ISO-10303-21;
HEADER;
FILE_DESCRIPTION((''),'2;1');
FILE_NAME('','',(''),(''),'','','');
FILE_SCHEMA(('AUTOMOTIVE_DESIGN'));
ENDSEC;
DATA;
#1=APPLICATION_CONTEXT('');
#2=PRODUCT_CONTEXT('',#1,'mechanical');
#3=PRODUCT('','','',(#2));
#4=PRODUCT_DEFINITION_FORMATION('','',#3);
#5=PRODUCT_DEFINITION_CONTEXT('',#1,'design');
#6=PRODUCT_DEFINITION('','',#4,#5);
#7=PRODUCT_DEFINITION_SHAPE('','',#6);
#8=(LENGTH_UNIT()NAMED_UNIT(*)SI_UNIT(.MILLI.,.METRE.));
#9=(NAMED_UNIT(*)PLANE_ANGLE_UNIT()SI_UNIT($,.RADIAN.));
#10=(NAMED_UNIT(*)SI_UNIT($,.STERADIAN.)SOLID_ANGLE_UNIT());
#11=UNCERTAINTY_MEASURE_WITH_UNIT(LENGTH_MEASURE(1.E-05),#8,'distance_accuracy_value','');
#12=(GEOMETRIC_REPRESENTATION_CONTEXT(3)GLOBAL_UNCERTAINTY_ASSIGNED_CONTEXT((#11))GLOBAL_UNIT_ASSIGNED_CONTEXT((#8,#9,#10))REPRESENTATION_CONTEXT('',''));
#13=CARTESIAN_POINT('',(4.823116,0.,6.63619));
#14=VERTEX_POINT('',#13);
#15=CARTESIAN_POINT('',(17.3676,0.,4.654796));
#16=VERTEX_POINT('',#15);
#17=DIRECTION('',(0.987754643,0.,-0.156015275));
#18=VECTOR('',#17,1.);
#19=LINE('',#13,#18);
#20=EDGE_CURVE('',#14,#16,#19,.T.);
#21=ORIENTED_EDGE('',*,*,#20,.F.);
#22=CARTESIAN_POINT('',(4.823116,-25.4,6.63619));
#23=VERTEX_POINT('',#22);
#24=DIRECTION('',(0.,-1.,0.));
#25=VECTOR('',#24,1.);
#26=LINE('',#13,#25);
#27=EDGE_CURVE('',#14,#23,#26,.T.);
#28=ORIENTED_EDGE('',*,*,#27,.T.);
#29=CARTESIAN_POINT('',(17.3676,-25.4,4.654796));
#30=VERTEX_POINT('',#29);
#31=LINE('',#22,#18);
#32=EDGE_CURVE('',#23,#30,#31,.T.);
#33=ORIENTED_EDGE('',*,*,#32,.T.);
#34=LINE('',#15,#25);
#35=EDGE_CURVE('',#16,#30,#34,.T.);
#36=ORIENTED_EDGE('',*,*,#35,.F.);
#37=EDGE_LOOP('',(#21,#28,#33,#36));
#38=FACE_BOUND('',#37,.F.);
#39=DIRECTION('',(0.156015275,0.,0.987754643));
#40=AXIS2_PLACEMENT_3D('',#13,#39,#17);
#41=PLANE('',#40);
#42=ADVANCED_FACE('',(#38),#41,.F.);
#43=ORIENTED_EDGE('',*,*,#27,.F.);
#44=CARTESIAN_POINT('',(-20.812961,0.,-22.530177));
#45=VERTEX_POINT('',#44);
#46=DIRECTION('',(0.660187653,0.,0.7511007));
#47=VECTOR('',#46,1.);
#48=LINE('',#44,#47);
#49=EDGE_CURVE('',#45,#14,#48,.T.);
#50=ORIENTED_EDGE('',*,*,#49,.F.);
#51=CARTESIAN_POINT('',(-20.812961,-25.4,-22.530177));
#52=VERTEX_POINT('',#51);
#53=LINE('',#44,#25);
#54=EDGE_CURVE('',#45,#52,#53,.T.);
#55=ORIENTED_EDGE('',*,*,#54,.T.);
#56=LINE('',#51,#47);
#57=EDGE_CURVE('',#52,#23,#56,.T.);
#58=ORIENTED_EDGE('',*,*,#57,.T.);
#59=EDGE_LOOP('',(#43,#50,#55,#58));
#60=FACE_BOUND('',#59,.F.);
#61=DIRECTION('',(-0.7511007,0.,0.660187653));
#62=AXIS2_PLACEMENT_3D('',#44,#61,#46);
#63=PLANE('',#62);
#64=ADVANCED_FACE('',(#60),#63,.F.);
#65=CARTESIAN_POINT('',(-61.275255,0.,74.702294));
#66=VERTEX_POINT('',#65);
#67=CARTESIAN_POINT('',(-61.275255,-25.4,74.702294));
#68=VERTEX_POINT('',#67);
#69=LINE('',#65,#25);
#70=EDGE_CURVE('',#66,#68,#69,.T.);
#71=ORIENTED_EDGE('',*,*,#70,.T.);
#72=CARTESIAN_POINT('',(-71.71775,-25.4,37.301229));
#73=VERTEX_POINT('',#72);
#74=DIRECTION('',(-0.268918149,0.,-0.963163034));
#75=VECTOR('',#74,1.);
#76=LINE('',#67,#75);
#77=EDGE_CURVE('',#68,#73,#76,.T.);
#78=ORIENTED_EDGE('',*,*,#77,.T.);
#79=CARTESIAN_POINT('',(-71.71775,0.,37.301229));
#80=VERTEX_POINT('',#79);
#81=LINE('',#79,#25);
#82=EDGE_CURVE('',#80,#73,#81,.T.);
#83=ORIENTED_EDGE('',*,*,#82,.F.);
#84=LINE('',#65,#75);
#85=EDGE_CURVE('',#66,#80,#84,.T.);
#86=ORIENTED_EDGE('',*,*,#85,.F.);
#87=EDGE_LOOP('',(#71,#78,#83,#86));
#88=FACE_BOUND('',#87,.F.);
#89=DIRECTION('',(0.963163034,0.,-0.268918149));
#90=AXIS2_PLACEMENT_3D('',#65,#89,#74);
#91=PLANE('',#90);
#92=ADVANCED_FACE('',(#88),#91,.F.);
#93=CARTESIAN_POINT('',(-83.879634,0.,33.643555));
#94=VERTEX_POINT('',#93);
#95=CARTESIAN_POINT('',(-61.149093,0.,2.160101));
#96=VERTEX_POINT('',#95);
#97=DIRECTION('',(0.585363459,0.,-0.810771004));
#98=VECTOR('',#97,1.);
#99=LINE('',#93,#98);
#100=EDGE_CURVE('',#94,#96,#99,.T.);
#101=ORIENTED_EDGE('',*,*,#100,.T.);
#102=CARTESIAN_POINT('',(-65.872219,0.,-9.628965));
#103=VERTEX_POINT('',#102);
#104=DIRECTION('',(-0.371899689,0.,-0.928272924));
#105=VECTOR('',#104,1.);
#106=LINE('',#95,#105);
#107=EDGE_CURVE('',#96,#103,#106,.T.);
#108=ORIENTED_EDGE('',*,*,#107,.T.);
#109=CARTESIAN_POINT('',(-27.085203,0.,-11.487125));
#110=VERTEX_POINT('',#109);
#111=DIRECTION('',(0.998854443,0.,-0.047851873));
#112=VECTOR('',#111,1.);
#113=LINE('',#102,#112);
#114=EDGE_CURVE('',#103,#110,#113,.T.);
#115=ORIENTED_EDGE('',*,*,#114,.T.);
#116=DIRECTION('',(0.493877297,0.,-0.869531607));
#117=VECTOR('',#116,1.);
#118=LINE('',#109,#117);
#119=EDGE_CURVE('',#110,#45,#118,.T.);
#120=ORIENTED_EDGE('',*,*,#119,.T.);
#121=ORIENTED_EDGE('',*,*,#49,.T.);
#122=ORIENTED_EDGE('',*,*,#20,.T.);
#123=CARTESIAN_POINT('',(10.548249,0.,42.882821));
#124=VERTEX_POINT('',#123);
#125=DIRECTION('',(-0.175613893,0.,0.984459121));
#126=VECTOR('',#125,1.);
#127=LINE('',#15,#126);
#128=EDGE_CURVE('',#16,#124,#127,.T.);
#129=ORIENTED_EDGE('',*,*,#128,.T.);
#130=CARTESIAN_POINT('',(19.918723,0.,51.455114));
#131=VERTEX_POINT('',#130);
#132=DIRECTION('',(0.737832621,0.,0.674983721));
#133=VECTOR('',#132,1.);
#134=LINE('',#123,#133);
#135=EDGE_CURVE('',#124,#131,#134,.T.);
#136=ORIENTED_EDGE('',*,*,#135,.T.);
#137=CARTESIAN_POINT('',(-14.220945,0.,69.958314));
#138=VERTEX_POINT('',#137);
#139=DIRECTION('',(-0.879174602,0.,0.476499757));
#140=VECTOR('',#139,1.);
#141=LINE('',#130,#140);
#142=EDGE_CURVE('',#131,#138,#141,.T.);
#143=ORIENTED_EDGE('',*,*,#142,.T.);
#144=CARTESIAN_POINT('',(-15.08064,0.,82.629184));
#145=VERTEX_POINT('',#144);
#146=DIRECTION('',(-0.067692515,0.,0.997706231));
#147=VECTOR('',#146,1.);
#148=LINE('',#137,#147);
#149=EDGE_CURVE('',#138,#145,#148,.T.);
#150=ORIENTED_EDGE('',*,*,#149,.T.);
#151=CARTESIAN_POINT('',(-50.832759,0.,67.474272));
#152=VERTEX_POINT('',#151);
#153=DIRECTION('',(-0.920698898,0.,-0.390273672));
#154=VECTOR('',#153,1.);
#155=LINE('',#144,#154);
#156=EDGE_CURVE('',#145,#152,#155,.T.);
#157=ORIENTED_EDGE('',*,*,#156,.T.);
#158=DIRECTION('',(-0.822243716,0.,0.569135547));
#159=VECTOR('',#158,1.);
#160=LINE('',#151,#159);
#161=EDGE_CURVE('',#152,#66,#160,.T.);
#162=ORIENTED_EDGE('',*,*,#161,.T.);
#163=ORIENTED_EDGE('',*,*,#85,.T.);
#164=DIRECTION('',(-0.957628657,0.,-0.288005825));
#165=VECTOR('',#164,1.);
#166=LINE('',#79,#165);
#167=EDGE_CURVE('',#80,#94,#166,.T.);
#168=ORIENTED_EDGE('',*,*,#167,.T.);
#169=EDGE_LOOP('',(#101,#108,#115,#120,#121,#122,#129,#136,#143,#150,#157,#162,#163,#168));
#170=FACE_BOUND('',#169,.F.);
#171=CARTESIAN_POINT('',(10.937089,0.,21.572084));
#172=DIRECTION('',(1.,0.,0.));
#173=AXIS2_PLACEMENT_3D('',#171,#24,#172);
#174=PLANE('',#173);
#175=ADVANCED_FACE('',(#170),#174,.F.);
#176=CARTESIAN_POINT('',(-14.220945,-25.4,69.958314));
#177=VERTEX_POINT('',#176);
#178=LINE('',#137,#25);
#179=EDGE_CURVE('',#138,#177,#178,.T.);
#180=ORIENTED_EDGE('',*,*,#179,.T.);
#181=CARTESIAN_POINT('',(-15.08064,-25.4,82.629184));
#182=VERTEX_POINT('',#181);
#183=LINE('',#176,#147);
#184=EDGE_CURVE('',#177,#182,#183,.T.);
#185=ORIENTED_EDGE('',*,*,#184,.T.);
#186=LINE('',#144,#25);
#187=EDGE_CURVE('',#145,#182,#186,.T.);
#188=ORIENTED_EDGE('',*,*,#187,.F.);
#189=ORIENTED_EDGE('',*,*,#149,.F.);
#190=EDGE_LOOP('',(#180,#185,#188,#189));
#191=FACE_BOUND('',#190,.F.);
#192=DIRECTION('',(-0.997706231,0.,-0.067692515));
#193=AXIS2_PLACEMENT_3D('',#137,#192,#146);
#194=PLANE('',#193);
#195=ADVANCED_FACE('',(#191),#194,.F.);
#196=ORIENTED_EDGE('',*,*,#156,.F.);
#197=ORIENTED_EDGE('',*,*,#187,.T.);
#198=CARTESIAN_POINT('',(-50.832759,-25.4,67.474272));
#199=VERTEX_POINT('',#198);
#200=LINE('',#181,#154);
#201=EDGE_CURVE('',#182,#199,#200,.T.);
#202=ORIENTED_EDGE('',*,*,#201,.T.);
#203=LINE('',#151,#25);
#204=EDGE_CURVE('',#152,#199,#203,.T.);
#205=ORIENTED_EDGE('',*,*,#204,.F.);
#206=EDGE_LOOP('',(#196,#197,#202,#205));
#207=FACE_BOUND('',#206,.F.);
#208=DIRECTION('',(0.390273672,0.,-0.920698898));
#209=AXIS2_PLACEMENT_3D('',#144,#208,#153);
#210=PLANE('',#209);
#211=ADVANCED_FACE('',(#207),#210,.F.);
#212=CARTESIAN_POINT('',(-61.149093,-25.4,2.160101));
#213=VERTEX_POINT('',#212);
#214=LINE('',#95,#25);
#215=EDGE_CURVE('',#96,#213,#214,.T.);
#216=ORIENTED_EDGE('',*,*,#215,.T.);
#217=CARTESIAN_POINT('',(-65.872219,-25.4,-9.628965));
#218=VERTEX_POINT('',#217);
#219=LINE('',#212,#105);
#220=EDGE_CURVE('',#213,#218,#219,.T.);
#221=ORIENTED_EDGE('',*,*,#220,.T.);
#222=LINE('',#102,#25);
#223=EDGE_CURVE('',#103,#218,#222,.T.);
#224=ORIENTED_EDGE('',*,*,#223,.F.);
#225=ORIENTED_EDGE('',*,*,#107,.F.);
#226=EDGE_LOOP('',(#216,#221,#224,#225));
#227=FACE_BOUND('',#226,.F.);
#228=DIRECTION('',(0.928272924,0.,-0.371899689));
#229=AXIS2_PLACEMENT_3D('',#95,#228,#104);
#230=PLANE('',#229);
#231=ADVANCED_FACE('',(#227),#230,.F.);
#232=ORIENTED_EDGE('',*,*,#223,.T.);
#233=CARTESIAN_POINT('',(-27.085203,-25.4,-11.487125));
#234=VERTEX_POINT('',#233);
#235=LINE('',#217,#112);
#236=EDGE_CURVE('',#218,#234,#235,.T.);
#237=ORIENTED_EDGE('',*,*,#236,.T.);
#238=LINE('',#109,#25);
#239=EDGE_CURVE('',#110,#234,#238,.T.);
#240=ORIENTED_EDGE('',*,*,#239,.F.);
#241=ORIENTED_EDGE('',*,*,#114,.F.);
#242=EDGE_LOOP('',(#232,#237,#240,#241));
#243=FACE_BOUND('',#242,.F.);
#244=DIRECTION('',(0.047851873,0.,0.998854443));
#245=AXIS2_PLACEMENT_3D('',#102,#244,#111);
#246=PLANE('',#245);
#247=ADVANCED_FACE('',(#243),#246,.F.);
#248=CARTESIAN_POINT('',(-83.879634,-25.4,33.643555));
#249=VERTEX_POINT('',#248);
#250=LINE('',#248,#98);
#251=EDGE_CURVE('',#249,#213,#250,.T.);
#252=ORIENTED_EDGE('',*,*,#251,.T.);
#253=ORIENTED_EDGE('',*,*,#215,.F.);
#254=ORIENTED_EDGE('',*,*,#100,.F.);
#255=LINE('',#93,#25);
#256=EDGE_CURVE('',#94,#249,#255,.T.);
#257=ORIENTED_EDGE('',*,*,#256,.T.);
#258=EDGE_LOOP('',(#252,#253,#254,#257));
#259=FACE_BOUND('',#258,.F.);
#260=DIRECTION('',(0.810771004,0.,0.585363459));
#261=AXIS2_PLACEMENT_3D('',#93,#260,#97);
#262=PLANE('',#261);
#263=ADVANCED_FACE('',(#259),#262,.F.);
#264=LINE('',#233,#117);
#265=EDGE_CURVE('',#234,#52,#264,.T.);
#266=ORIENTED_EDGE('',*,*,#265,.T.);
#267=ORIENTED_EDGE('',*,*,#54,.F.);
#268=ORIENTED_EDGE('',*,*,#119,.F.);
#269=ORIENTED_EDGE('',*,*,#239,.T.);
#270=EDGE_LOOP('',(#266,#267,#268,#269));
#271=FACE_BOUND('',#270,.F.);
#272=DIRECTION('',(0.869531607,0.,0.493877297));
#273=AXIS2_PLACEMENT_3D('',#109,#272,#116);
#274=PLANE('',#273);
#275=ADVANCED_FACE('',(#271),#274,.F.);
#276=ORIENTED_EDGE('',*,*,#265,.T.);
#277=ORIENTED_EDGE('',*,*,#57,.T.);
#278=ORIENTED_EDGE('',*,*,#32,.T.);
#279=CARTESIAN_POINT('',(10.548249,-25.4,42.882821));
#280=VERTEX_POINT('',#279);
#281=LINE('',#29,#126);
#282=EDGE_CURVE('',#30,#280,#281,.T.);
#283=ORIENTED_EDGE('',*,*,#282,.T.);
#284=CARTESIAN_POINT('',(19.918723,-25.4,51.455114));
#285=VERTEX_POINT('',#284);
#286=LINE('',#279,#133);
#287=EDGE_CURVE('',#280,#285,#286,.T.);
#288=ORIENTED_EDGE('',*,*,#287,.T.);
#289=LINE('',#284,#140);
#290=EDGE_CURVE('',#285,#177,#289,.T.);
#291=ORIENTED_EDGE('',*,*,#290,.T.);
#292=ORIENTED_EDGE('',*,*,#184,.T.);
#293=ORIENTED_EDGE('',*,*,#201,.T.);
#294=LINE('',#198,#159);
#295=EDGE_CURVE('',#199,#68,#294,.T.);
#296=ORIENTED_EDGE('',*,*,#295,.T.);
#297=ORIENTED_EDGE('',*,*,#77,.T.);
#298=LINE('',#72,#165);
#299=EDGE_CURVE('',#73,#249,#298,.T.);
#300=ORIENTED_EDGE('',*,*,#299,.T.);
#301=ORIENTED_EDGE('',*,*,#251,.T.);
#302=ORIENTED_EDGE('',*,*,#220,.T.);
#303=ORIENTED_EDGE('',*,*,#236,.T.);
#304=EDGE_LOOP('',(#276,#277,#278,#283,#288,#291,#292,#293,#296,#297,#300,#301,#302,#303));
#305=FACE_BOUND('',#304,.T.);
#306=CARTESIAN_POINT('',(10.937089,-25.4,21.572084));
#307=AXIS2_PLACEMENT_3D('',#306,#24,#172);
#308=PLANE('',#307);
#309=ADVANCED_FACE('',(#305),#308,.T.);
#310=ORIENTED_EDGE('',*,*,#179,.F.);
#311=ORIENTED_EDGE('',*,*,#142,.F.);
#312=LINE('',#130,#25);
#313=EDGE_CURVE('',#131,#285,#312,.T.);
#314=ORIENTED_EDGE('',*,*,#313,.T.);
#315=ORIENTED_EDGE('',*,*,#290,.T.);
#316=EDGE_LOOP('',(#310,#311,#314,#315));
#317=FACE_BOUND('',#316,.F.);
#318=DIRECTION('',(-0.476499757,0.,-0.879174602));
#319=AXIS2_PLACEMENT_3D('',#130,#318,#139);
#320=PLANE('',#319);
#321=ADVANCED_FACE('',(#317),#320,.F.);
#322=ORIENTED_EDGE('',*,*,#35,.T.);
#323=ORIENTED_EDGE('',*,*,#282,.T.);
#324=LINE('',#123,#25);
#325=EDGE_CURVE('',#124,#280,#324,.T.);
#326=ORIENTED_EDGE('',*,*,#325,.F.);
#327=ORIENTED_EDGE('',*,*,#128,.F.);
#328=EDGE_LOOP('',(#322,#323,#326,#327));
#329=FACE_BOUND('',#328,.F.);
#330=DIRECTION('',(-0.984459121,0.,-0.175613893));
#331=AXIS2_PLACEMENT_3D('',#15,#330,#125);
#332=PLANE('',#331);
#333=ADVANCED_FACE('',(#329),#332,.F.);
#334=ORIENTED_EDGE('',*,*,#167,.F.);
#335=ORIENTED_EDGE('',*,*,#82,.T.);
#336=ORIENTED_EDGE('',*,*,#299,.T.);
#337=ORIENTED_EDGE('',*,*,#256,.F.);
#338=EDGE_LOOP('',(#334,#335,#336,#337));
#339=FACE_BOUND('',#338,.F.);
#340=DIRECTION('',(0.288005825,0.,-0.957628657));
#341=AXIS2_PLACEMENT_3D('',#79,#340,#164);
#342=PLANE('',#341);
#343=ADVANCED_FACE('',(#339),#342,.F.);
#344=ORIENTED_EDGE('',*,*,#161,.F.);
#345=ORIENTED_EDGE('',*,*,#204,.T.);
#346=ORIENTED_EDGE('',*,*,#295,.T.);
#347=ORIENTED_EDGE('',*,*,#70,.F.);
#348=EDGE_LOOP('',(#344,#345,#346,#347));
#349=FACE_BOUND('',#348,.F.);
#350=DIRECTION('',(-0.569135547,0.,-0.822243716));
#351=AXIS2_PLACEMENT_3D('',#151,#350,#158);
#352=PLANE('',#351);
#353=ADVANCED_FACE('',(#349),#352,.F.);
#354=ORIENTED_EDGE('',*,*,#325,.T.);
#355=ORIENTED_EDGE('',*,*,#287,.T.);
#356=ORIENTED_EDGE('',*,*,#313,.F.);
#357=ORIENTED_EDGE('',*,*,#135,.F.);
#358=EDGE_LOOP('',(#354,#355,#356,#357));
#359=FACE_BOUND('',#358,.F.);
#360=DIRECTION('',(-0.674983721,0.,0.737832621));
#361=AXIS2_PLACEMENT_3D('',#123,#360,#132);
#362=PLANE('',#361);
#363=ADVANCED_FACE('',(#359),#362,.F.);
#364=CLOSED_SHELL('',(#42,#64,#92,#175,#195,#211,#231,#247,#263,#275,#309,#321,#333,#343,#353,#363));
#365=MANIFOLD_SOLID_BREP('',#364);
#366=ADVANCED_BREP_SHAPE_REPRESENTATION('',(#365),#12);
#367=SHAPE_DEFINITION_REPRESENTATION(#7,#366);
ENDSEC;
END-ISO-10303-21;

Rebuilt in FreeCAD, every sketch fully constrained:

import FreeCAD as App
import Part
import Sketcher

V = App.Vector
Q = App.Units.Quantity


def add_polygon(sketch, points):
    """Adds a closed chain of lines whose ends are joined by coincident constraints."""
    first, n = sketch.GeometryCount, len(points)
    for a, b in zip(points, points[1:] + points[:1]):
        sketch.addGeometry(Part.LineSegment(App.Vector(*a, 0), App.Vector(*b, 0)), False)
    for i in range(n):
        sketch.addConstraint(Sketcher.Constraint("Coincident", first + i, 2, first + (i + 1) % n, 1))

doc = App.newDocument("Part")
body = doc.addObject("PartDesign::Body", "Body")

# Sketch on XZ plane
sketch1 = body.newObject("Sketcher::SketchObject", "Sketch")
sketch1.AttachmentSupport = (doc.getObject("XZ_Plane"), [""])
sketch1.MapMode = "FlatFace"
add_polygon(sketch1, [(17, 5), (11, 43), (20, 51), (-14, 70), (-15, 83), (-51, 67), (-61, 75), (-72, 37), (-84, 34), (-61, 2), (-66, -10), (-27, -11), (-21, -23), (5, 7)])  # lines 0-13
sketch1.addConstraint([
    Sketcher.Constraint("Equal", 0, 2),
    Sketcher.Constraint("Equal", 1, 3),
    Sketcher.Constraint("Equal", 2, 4),
    Sketcher.Constraint("Equal", 3, 5),
    Sketcher.Constraint("Equal", 4, 6),
    Sketcher.Constraint("Equal", 5, 7),
    Sketcher.Constraint("Equal", 6, 8),
    Sketcher.Constraint("Equal", 7, 9),
    Sketcher.Constraint("Equal", 8, 10),
    Sketcher.Constraint("Equal", 9, 11),
    Sketcher.Constraint("Equal", 10, 12),
    Sketcher.Constraint("Equal", 11, 13),
    Sketcher.Constraint("Distance", 1, Q("0.5 in")),
    Sketcher.Constraint("DistanceY", -1, 1, 0, 2, Q("1.6883 in")),
    Sketcher.Constraint("Distance", 0, Q("38.831501 mm")),
    Sketcher.Constraint("DistanceY", -1, 1, 8, 2, Q("2.160101 mm")),
    Sketcher.Constraint("DistanceX", -1, 1, 13, 2, Q("17.3676 mm")),
    Sketcher.Constraint("DistanceY", 1, 2, 2, 2, Q("18.5032 mm")),
    Sketcher.Constraint("DistanceX", 6, 2, 0, 2, Q("82.265999 mm")),
    Sketcher.Constraint("DistanceY", 11, 2, 0, 2, Q("65.412998 mm")),
    Sketcher.Constraint("DistanceX", -1, 1, 0, 2, Q("10.548249 mm")),
    Sketcher.Constraint("DistanceX", 3, 2, -1, 1, Q("15.08064 mm")),
    Sketcher.Constraint("DistanceX", 4, 2, -1, 1, Q("50.832759 mm")),
    Sketcher.Constraint("DistanceY", -1, 1, 4, 2, Q("67.474272 mm")),
    Sketcher.Constraint("DistanceY", -1, 1, 6, 2, Q("37.301229 mm")),
    Sketcher.Constraint("DistanceX", 9, 2, -1, 1, Q("65.872219 mm")),
    Sketcher.Constraint("DistanceX", 11, 2, -1, 1, Q("20.812961 mm")),
    Sketcher.Constraint("DistanceX", 7, 2, 5, 2, Q("22.604379 mm")),
])
pad1 = body.newObject("PartDesign::Pad", "Pad")
pad1.Profile = sketch1
pad1.Length = Q("1 in")

doc.recompute()
